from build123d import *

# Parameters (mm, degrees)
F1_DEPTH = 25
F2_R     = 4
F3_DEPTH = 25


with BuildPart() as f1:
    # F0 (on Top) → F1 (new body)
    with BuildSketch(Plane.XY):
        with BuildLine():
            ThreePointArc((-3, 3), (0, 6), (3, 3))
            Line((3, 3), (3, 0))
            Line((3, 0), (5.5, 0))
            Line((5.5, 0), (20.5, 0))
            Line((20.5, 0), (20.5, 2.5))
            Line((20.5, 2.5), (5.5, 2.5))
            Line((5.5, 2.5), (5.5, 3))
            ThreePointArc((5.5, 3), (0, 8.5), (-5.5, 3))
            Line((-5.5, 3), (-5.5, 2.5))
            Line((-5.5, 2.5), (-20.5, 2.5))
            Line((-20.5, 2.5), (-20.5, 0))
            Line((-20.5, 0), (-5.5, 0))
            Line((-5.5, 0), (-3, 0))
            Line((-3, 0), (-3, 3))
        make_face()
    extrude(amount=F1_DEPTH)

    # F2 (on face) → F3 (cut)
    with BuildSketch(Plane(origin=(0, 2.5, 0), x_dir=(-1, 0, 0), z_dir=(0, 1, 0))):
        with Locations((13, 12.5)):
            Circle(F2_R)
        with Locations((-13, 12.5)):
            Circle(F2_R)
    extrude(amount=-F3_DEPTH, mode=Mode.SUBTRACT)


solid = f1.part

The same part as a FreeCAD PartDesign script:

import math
import FreeCAD as App
import Part
import Sketcher
from FreeCAD import Vector

doc = App.newDocument("Part")
body = doc.addObject("PartDesign::Body", "Body")

# Sketch on XY plane
sketch1 = doc.addObject("Sketcher::SketchObject", "Sketch")
body.addObject(sketch1)
sketch1.AttachmentSupport = (doc.XY_Plane, [""])
sketch1.MapMode = "FlatFace"
sketch1.addGeometry([
    Part.ArcOfCircle(Part.Circle(Vector(0, 3, 0), Vector(0, 0, 1), 3), math.radians(0), math.radians(180)),  # 0
    Part.LineSegment(Vector(3, 3, 0), Vector(3, 0, 0)),  # 1
    Part.LineSegment(Vector(3, 0, 0), Vector(20.5, 0, 0)),  # 2
    Part.LineSegment(Vector(20.5, 0, 0), Vector(20.5, 2.5, 0)),  # 3
    Part.LineSegment(Vector(20.5, 2.5, 0), Vector(5.5, 2.5, 0)),  # 4
    Part.LineSegment(Vector(5.5, 2.5, 0), Vector(5.5, 3, 0)),  # 5
    Part.ArcOfCircle(Part.Circle(Vector(0, 3, 0), Vector(0, 0, 1), 5.5), math.radians(0), math.radians(180)),  # 6
    Part.LineSegment(Vector(-5.5, 3, 0), Vector(-5.5, 2.5, 0)),  # 7
    Part.LineSegment(Vector(-5.5, 2.5, 0), Vector(-20.5, 2.5, 0)),  # 8
    Part.LineSegment(Vector(-20.5, 2.5, 0), Vector(-20.5, 0, 0)),  # 9
    Part.LineSegment(Vector(-20.5, 0, 0), Vector(-3, 0, 0)),  # 10
    Part.LineSegment(Vector(-3, 0, 0), Vector(-3, 3, 0)),  # 11
], False)
sketch1.addConstraint([
    Sketcher.Constraint("Tangent", 0, 1, 1, 1),
    Sketcher.Constraint("Coincident", 1, 2, 2, 1),
    Sketcher.Constraint("Coincident", 2, 2, 3, 1),
    Sketcher.Constraint("Coincident", 3, 2, 4, 1),
    Sketcher.Constraint("Coincident", 4, 2, 5, 1),
    Sketcher.Constraint("Tangent", 5, 2, 6, 1),
    Sketcher.Constraint("Tangent", 6, 2, 7, 1),
    Sketcher.Constraint("Coincident", 7, 2, 8, 1),
    Sketcher.Constraint("Coincident", 8, 2, 9, 1),
    Sketcher.Constraint("Coincident", 9, 2, 10, 1),
    Sketcher.Constraint("Coincident", 10, 2, 11, 1),
    Sketcher.Constraint("Tangent", 11, 2, 0, 2),
    Sketcher.Constraint("Vertical", 1),
    Sketcher.Constraint("Horizontal", 2),
    Sketcher.Constraint("Vertical", 3),
    Sketcher.Constraint("Horizontal", 4),
    Sketcher.Constraint("Vertical", 5),
    Sketcher.Constraint("Vertical", 7),
    Sketcher.Constraint("Horizontal", 8),
    Sketcher.Constraint("Vertical", 9),
    Sketcher.Constraint("Horizontal", 10),
    Sketcher.Constraint("Vertical", 11),
    Sketcher.Constraint("Coincident", 6, 3, 0, 3),
    Sketcher.Constraint("Symmetric", 2, 2, 9, 2, -1, 1),
    Sketcher.Constraint("Symmetric", 4, 2, 7, 2, -2),
    Sketcher.Constraint("PointOnObject", 1, 2, -1),
    Sketcher.Constraint("Radius", 0, 3.0),
    Sketcher.Constraint("Radius", 6, 5.5),
    Sketcher.Constraint("DistanceX", 4, 2, 4, 1, 15.0),
    Sketcher.Constraint("DistanceY", 1, 2, 1, 1, 3.0),
    Sketcher.Constraint("DistanceY", 3, 1, 3, 2, 2.5),
])
pad1 = doc.addObject("PartDesign::Pad", "Pad")
body.addObject(pad1)
pad1.Profile = sketch1
pad1.Length = 25

# Sketch on XZ plane
sketch2 = doc.addObject("Sketcher::SketchObject", "Sketch001")
body.addObject(sketch2)
sketch2.AttachmentSupport = (doc.XZ_Plane, [""])
sketch2.MapMode = "FlatFace"
sketch2.AttachmentOffset = App.Placement(Vector(0, 0, -2.5), App.Rotation())
sketch2.addGeometry([
    Part.Circle(Vector(-13, 12.5, 0), Vector(0, 0, 1), 4),
    Part.Circle(Vector(13, 12.5, 0), Vector(0, 0, 1), 4),
], False)
sketch2.addConstraint([
    Sketcher.Constraint("Equal", 0, 1),
    Sketcher.Constraint("Symmetric", 0, 3, 1, 3, -2),
    Sketcher.Constraint("Diameter", 0, 8.0),
    Sketcher.Constraint("DistanceX", 0, 3, -1, 1, 13.0),
    Sketcher.Constraint("DistanceY", -1, 1, 0, 3, 12.5),
])
pocket1 = doc.addObject("PartDesign::Pocket", "Pocket")
body.addObject(pocket1)
pocket1.Profile = sketch2
pocket1.Length = 25
pocket1.Reversed = True

doc.recompute()
